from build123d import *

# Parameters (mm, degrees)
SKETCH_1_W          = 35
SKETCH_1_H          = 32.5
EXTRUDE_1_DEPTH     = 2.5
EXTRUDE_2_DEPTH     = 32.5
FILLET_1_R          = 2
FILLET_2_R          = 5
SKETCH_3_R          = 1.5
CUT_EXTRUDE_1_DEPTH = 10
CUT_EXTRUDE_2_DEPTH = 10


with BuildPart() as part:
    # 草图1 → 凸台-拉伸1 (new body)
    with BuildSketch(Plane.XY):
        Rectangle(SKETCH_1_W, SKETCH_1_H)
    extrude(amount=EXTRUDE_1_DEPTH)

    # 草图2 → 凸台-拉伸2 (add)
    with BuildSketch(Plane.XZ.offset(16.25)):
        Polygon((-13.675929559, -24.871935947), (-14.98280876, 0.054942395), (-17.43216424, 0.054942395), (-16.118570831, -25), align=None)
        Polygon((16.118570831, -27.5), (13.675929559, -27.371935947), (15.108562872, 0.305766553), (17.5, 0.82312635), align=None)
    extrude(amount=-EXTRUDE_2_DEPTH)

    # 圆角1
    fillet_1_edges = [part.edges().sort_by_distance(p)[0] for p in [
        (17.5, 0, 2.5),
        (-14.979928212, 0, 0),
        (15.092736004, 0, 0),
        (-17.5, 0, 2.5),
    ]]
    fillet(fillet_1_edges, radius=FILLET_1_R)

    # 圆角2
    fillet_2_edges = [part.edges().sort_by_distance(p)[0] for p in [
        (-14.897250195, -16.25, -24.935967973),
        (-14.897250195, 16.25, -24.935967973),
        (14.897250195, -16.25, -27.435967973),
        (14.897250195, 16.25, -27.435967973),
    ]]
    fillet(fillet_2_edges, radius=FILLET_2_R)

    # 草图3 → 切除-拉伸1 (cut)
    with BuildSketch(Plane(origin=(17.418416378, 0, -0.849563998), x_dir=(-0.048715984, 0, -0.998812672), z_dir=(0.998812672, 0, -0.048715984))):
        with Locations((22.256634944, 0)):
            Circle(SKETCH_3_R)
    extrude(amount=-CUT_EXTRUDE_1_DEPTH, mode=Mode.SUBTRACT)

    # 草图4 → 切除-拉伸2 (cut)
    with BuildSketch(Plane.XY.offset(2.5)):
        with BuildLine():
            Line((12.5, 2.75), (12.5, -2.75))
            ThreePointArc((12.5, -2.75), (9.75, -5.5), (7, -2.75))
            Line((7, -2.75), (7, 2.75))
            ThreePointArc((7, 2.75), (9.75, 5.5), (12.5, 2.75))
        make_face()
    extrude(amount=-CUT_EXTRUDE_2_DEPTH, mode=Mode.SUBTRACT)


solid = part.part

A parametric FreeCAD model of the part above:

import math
import FreeCAD as App
import Part
import Sketcher
from FreeCAD import Vector
Q = App.Units.Quantity


def edges_at(feature, points):
    """Names of the edges that pass closest to the given points."""
    edges = feature.Shape.Edges
    near = lambda p: min(range(len(edges)), key=lambda i: edges[i].distToShape(Part.Vertex(*p))[0])
    return sorted({f"Edge{near(p) + 1}" for p in points})


def add_polygon(sketch, points):
    """Adds a closed chain of lines whose ends are joined by coincident constraints."""
    first, n = sketch.GeometryCount, len(points)
    for a, b in zip(points, points[1:] + points[:1]):
        sketch.addGeometry(Part.LineSegment(App.Vector(*a, 0), App.Vector(*b, 0)), False)
    for i in range(n):
        sketch.addConstraint(Sketcher.Constraint("Coincident", first + i, 2, first + (i + 1) % n, 1))

doc = App.newDocument("Part")
params = doc.addObject("Spreadsheet::Sheet", "Params")
for row, (alias, value) in enumerate([
    ("sketch1_width", "35 mm"),
    ("sketch1_height", "32.5 mm"),
    ("pad1_length", "2.5 mm"),
    ("pad2_length", "32.5 mm"),
    ("fillet_radius", "2 mm"),
    ("fillet2_radius", "5 mm"),
    ("sketch3_diameter", "3 mm"),
    ("pocket1_length", "10 mm"),
    ("sketch4_radius", "2.75 mm"),
    ("sketch4_height", "5.5 mm"),
    ("pocket2_length", "10 mm"),
], start=1):
    params.set(f"A{row}", alias)
    params.set(f"B{row}", "=" + value)
    params.setAlias(f"B{row}", alias)

body = doc.addObject("PartDesign::Body", "Body")

sketch1 = body.newObject("Sketcher::SketchObject", "Sketch")
sketch1.AttachmentSupport = (doc.getObject("XY_Plane"), [""])
sketch1.MapMode = "FlatFace"
add_polygon(sketch1, [(-18, 16), (-18, -16), (18, -16), (18, 16)])
sketch1.addConstraint(Sketcher.Constraint("Vertical", 0))
sketch1.addConstraint(Sketcher.Constraint("Horizontal", 1))
sketch1.addConstraint(Sketcher.Constraint("Vertical", 2))
sketch1.addConstraint(Sketcher.Constraint("Horizontal", 3))
sketch1.addConstraint(Sketcher.Constraint("Symmetric", 0, 2, 2, 2, -1, 1))
sketch1.addConstraint(Sketcher.Constraint("DistanceX", 1, 1, 1, 2, Q("35 mm")))
sketch1.addConstraint(Sketcher.Constraint("DistanceY", 0, 2, 0, 1, Q("32.5 mm")))
sketch1.setExpression("Constraints[9]", "Params.sketch1_width")
sketch1.setExpression("Constraints[10]", "Params.sketch1_height")
pad1 = body.newObject("PartDesign::Pad", "Pad")
pad1.Profile = sketch1
pad1.setExpression("Length", "Params.pad1_length")

sketch2 = body.newObject("Sketcher::SketchObject", "Sketch001")
sketch2.AttachmentSupport = (doc.getObject("XZ_Plane"), [""])
sketch2.MapMode = "FlatFace"
sketch2.AttachmentOffset = App.Placement(Vector(0, 0, 16.25), App.Rotation())
add_polygon(sketch2, [(-13.7, -24.9), (-15, 0.1), (-17.4, 0.1), (-16.1, -25)])
add_polygon(sketch2, [(13.7, -27.4), (16.1, -27.5), (17.5, 0.8), (15.1, 0.3)])
sketch2.addConstraint(Sketcher.Constraint("Horizontal", 1))
sketch2.addConstraint(Sketcher.Constraint("Parallel", 0, 2))
sketch2.addConstraint(Sketcher.Constraint("Perpendicular", 2, 3))
sketch2.addConstraint(Sketcher.Constraint("Equal", 3, 4))
sketch2.addConstraint(Sketcher.Constraint("DistanceY", 2, 2, -1, 1, Q("25 mm")))
sketch2.addConstraint(Sketcher.Constraint("DistanceY", 4, 2, -1, 1, Q("27.5 mm")))
sketch2.addConstraint(Sketcher.Constraint("DistanceX", -1, 1, 5, 2, Q("17.5 mm")))
sketch2.addConstraint(Sketcher.Constraint("DistanceY", 7, 2, 3, 2, Q("2.5 mm")))
sketch2.addConstraint(Sketcher.Constraint("DistanceX", 3, 2, 4, 2, Q("29.7945 mm")))
sketch2.addConstraint(Sketcher.Constraint("Distance", 6, Q("2.44676 mm")))
sketch2.addConstraint(Sketcher.Constraint("DistanceX", 1, 2, 1, 1, Q("2.449355 mm")))
sketch2.addConstraint(Sketcher.Constraint("DistanceX", 0, 2, -1, 1, Q("14.982809 mm")))
sketch2.addConstraint(Sketcher.Constraint("DistanceX", 2, 2, -1, 1, Q("16.118571 mm")))
sketch2.addConstraint(Sketcher.Constraint("DistanceY", 3, 2, 0, 2, Q("24.926878 mm")))
sketch2.addConstraint(Sketcher.Constraint("DistanceY", 6, 2, 5, 2, Q("0.51736 mm")))
sketch2.addConstraint(Sketcher.Constraint("Distance", 5, Q("28.356795 mm")))
pad2 = body.newObject("PartDesign::Pad", "Pad001")
pad2.Profile = sketch2
pad2.setExpression("Length", "Params.pad2_length")
pad2.Reversed = True
doc.recompute()

fillet = body.newObject("PartDesign::Fillet", "Fillet")
fillet.Base = (pad2, edges_at(pad2, [
    (17.5, 0, 2.5),
    (-14.98, 0, 0),
    (15.093, 0, 0),
    (-17.5, 0, 2.5),
]))
fillet.setExpression("Radius", "Params.fillet_radius")
doc.recompute()

fillet2 = body.newObject("PartDesign::Fillet", "Fillet001")
fillet2.Base = (fillet, edges_at(fillet, [
    (-14.897, -16.25, -24.936),
    (-14.897, 16.25, -24.936),
    (14.897, -16.25, -27.436),
    (14.897, 16.25, -27.436),
]))
fillet2.setExpression("Radius", "Params.fillet2_radius")

sketch3 = body.newObject("Sketcher::SketchObject", "Sketch002")
sketch3.Placement = App.Placement(Vector(17.418416, 0, -0.849564), App.Rotation(Vector(-0.048715984, 0, -0.998812672), Vector(0, 1.000000001, 0), Vector(0.998812672, 0, -0.048715984), "ZXY"))
sketch3.addGeometry(Part.Circle(Vector(22.3, 0, 0), Vector(0, 0, 1), 1.5), False)
sketch3.addConstraint(Sketcher.Constraint("PointOnObject", 0, 3, -1))
sketch3.addConstraint(Sketcher.Constraint("Diameter", 0, Q("3 mm")))
sketch3.addConstraint(Sketcher.Constraint("DistanceX", -1, 1, 0, 3, Q("22.256635 mm")))
sketch3.setExpression("Constraints[1]", "Params.sketch3_diameter")
pocket1 = body.newObject("PartDesign::Pocket", "Pocket")
pocket1.Profile = sketch3
pocket1.setExpression("Length", "Params.pocket1_length")

sketch4 = body.newObject("Sketcher::SketchObject", "Sketch003")
sketch4.AttachmentSupport = (doc.getObject("XY_Plane"), [""])
sketch4.MapMode = "FlatFace"
sketch4.AttachmentOffset = App.Placement(Vector(0, 0, 2.5), App.Rotation())
sketch4.addGeometry(Part.LineSegment(Vector(12.5, -2.8, 0), Vector(12.5, 2.8, 0)), False)
sketch4.addGeometry(Part.ArcOfCircle(Part.Circle(Vector(9.8, 2.8, 0), Vector(0, 0, 1), 2.8), math.radians(0), math.radians(180)), False)
sketch4.addGeometry(Part.LineSegment(Vector(7, 2.8, 0), Vector(7, -2.8, 0)), False)
sketch4.addGeometry(Part.ArcOfCircle(Part.Circle(Vector(9.8, -2.8, 0), Vector(0, 0, 1), 2.8), math.radians(180), math.radians(360)), False)
sketch4.addConstraint(Sketcher.Constraint("Tangent", 0, 2, 1, 1))
sketch4.addConstraint(Sketcher.Constraint("Tangent", 1, 2, 2, 1))
sketch4.addConstraint(Sketcher.Constraint("Tangent", 2, 2, 3, 1))
sketch4.addConstraint(Sketcher.Constraint("Tangent", 3, 2, 0, 1))
sketch4.addConstraint(Sketcher.Constraint("Vertical", 0))
sketch4.addConstraint(Sketcher.Constraint("Vertical", 2))
sketch4.addConstraint(Sketcher.Constraint("Radius", 1, Q("2.75 mm")))
sketch4.addConstraint(Sketcher.Constraint("DistanceY", 0, 1, 0, 2, Q("5.5 mm")))
sketch4.addConstraint(Sketcher.Constraint("DistanceX", -1, 1, 1, 2, Q("7 mm")))
sketch4.addConstraint(Sketcher.Constraint("DistanceY", -1, 1, 1, 3, Q("2.75 mm")))
sketch4.setExpression("Constraints[6]", "Params.sketch4_radius")
sketch4.setExpression("Constraints[7]", "Params.sketch4_height")
pocket2 = body.newObject("PartDesign::Pocket", "Pocket001")
pocket2.Profile = sketch4
pocket2.setExpression("Length", "Params.pocket2_length")

doc.recompute()
